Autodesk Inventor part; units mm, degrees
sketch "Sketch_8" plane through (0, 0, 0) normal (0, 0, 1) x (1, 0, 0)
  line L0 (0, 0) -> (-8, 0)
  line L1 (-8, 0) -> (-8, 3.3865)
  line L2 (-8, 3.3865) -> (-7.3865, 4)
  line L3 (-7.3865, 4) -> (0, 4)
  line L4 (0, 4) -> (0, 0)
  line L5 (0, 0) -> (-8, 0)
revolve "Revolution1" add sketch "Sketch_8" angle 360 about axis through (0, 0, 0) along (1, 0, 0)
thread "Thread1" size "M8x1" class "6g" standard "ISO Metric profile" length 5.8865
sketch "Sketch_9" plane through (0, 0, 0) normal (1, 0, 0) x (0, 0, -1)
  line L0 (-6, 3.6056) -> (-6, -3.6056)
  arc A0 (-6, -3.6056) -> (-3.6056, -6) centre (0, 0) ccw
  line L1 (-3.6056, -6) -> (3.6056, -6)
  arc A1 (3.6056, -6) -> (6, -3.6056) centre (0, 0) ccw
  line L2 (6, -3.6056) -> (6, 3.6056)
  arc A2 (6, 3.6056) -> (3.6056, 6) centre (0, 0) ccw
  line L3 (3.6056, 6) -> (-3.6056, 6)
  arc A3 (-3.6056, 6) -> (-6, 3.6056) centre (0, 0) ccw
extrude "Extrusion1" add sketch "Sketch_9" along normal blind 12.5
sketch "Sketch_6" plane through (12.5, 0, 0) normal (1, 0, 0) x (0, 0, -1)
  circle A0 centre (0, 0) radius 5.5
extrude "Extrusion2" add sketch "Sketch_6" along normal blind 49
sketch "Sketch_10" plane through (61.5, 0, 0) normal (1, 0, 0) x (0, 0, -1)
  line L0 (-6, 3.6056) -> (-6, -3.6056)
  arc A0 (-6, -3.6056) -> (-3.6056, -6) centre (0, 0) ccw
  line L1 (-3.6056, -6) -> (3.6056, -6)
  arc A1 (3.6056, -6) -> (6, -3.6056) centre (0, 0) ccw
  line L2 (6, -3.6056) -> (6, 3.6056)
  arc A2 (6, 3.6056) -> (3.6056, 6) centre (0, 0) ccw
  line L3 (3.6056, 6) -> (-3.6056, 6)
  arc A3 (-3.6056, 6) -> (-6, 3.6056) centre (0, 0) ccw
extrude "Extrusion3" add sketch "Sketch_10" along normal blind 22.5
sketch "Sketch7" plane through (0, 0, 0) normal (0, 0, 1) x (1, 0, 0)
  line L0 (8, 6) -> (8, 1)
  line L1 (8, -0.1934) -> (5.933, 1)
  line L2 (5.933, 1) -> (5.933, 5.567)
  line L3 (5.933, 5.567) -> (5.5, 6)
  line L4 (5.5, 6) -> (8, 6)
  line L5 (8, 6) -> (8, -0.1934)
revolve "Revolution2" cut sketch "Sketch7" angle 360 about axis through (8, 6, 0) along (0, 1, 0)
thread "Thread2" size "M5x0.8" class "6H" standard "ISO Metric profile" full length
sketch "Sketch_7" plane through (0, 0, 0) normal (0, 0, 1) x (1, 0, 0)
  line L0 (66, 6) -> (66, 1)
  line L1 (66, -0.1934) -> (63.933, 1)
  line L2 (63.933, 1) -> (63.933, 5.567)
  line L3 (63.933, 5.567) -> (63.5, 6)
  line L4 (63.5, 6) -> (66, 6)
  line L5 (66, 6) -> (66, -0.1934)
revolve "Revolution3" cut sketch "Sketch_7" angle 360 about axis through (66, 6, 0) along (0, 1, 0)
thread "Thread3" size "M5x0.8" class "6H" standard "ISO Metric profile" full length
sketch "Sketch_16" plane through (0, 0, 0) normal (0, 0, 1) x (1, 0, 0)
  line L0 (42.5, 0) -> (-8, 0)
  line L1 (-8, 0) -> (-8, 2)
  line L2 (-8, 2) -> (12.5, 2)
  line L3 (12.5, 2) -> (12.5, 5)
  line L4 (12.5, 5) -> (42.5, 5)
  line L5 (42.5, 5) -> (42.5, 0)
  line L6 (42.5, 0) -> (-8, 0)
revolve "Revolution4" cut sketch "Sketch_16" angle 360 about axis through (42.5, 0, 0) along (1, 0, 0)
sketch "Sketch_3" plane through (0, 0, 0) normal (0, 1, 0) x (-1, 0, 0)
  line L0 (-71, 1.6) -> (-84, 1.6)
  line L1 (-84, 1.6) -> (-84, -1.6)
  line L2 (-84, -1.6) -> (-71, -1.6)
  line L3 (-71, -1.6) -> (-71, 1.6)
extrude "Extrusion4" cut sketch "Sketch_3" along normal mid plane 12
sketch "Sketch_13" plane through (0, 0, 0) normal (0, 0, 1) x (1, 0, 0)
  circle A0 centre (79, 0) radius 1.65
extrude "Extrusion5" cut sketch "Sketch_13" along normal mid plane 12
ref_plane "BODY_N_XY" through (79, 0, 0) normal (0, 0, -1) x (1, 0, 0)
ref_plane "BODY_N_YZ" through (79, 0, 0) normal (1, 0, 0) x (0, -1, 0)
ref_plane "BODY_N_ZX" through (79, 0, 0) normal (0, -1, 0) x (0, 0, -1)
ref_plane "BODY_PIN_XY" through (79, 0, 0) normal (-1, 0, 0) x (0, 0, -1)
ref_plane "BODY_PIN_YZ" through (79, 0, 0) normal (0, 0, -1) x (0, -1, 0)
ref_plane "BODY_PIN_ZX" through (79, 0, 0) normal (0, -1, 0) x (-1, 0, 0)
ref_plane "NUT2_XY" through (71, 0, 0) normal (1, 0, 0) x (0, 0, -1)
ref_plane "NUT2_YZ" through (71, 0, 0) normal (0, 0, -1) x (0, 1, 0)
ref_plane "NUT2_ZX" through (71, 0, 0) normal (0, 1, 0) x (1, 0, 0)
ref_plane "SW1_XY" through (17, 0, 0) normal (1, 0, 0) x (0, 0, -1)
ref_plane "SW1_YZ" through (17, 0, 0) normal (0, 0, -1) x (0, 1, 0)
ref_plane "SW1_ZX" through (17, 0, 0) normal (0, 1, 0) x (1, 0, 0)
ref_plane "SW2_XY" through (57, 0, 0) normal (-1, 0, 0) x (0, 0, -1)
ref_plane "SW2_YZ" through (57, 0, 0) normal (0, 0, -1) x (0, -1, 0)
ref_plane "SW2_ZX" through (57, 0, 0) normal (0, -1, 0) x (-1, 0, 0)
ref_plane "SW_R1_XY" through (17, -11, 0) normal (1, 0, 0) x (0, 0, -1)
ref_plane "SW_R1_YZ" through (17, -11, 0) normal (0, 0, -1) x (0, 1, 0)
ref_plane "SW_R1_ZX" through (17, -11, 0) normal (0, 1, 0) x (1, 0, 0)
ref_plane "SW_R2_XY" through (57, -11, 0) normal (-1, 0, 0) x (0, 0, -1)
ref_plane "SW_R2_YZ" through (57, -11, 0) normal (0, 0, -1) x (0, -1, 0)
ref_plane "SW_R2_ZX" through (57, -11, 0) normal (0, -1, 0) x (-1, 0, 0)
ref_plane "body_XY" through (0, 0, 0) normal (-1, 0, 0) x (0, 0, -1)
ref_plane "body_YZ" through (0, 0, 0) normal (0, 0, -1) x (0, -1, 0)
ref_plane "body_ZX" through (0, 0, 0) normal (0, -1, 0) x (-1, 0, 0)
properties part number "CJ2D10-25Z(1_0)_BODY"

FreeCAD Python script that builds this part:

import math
import FreeCAD as App
import Part
import Sketcher

V = App.Vector
Q = App.Units.Quantity


def add_polygon(sketch, points):
    """Adds a closed chain of lines whose ends are joined by coincident constraints."""
    first, n = sketch.GeometryCount, len(points)
    for a, b in zip(points, points[1:] + points[:1]):
        sketch.addGeometry(Part.LineSegment(App.Vector(*a, 0), App.Vector(*b, 0)), False)
    for i in range(n):
        sketch.addConstraint(Sketcher.Constraint("Coincident", first + i, 2, first + (i + 1) % n, 1))

doc = App.newDocument("Part")
body = doc.addObject("PartDesign::Body", "Body")

sketch1 = body.newObject("Sketcher::SketchObject", "Sketch")
sketch1.AttachmentSupport = (doc.getObject("XY_Plane"), [""])
sketch1.MapMode = "FlatFace"
add_polygon(sketch1, [(-8, 0), (0, 0), (0, 4), (-7.4, 4), (-8, 3.4)])
sketch1.addConstraint(Sketcher.Constraint("Horizontal", 0))
sketch1.addConstraint(Sketcher.Constraint("Vertical", 1))
sketch1.addConstraint(Sketcher.Constraint("Horizontal", 2))
sketch1.addConstraint(Sketcher.Constraint("Vertical", 4))
sketch1.addConstraint(Sketcher.Constraint("Coincident", 0, 2, -1, 1))
sketch1.addConstraint(Sketcher.Constraint("DistanceX", 0, 1, 0, 2, Q("8 mm")))
sketch1.addConstraint(Sketcher.Constraint("DistanceY", 1, 1, 1, 2, Q("4 mm")))
sketch1.addConstraint(Sketcher.Constraint("Angle", 3, Q("-135 deg")))
sketch1.addConstraint(Sketcher.Constraint("DistanceX", 2, 2, 2, 1, Q("7.3865 mm")))
revolution = body.newObject("PartDesign::Revolution", "Revolution")
revolution.Profile = sketch1
revolution.ReferenceAxis = (sketch1, ["H_Axis"])
revolution.Angle = 360

sketch2 = body.newObject("Sketcher::SketchObject", "Sketch001")
sketch2.AttachmentSupport = (doc.getObject("YZ_Plane"), [""])
sketch2.MapMode = "FlatFace"
sketch2.addGeometry(Part.ArcOfCircle(Part.Circle(V(0, 0, 0), V(0, 0, 1), 7), math.radians(31), math.radians(59)), False)
sketch2.addGeometry(Part.LineSegment(V(3.6, 6, 0), V(-3.6, 6, 0)), False)
sketch2.addGeometry(Part.ArcOfCircle(Part.Circle(V(0, 0, 0), V(0, 0, 1), 7), math.radians(121), math.radians(149)), False)
sketch2.addGeometry(Part.LineSegment(V(-6, 3.6, 0), V(-6, -3.6, 0)), False)
sketch2.addGeometry(Part.ArcOfCircle(Part.Circle(V(0, 0, 0), V(0, 0, 1), 7), math.radians(-149), math.radians(-121)), False)
sketch2.addGeometry(Part.LineSegment(V(-3.6, -6, 0), V(3.6, -6, 0)), False)
sketch2.addGeometry(Part.ArcOfCircle(Part.Circle(V(0, 0, 0), V(0, 0, 1), 7), math.radians(-59), math.radians(-31)), False)
sketch2.addGeometry(Part.LineSegment(V(6, -3.6, 0), V(6, 3.6, 0)), False)
sketch2.addConstraint(Sketcher.Constraint("Coincident", 0, 2, 1, 1))
sketch2.addConstraint(Sketcher.Constraint("Coincident", 1, 2, 2, 1))
sketch2.addConstraint(Sketcher.Constraint("Coincident", 2, 2, 3, 1))
sketch2.addConstraint(Sketcher.Constraint("Coincident", 3, 2, 4, 1))
sketch2.addConstraint(Sketcher.Constraint("Coincident", 4, 2, 5, 1))
sketch2.addConstraint(Sketcher.Constraint("Coincident", 5, 2, 6, 1))
sketch2.addConstraint(Sketcher.Constraint("Coincident", 6, 2, 7, 1))
sketch2.addConstraint(Sketcher.Constraint("Coincident", 7, 2, 0, 1))
sketch2.addConstraint(Sketcher.Constraint("Horizontal", 1))
sketch2.addConstraint(Sketcher.Constraint("Vertical", 3))
sketch2.addConstraint(Sketcher.Constraint("Horizontal", 5))
sketch2.addConstraint(Sketcher.Constraint("Vertical", 7))
sketch2.addConstraint(Sketcher.Constraint("Coincident", 0, 3, -1, 1))
sketch2.addConstraint(Sketcher.Constraint("Coincident", 2, 3, -1, 1))
sketch2.addConstraint(Sketcher.Constraint("Coincident", 4, 3, -1, 1))
sketch2.addConstraint(Sketcher.Constraint("Coincident", 6, 3, -1, 1))
sketch2.addConstraint(Sketcher.Constraint("Equal", 0, 2))
sketch2.addConstraint(Sketcher.Constraint("Equal", 2, 4))
sketch2.addConstraint(Sketcher.Constraint("Equal", 4, 6))
sketch2.addConstraint(Sketcher.Constraint("Horizontal", 3, 2, 6, 2))
sketch2.addConstraint(Sketcher.Constraint("Vertical", 1, 2, 4, 2))
sketch2.addConstraint(Sketcher.Constraint("Equal", 5, 3))
sketch2.addConstraint(Sketcher.Constraint("Radius", 0, Q("7 mm")))
sketch2.addConstraint(Sketcher.Constraint("DistanceY", -1, 1, 0, 2, Q("6 mm")))
pad1 = body.newObject("PartDesign::Pad", "Pad")
pad1.Profile = sketch2
pad1.Length = 12.5

sketch3 = body.newObject("Sketcher::SketchObject", "Sketch002")
sketch3.AttachmentSupport = (doc.getObject("YZ_Plane"), [""])
sketch3.MapMode = "FlatFace"
sketch3.AttachmentOffset = App.Placement(V(0, 0, 12.5), App.Rotation())
sketch3.addGeometry(Part.Circle(V(0, 0, 0), V(0, 0, 1), 6), False)
sketch3.addConstraint(Sketcher.Constraint("Coincident", 0, 3, -1, 1))
sketch3.addConstraint(Sketcher.Constraint("Diameter", 0, Q("11 mm")))
pad2 = body.newObject("PartDesign::Pad", "Pad001")
pad2.Profile = sketch3
pad2.Length = 49

sketch4 = body.newObject("Sketcher::SketchObject", "Sketch003")
sketch4.AttachmentSupport = (doc.getObject("YZ_Plane"), [""])
sketch4.MapMode = "FlatFace"
sketch4.AttachmentOffset = App.Placement(V(0, 0, 61.5), App.Rotation())
sketch4.addGeometry(Part.ArcOfCircle(Part.Circle(V(0, 0, 0), V(0, 0, 1), 7), math.radians(31), math.radians(59)), False)
sketch4.addGeometry(Part.LineSegment(V(3.6, 6, 0), V(-3.6, 6, 0)), False)
sketch4.addGeometry(Part.ArcOfCircle(Part.Circle(V(0, 0, 0), V(0, 0, 1), 7), math.radians(121), math.radians(149)), False)
sketch4.addGeometry(Part.LineSegment(V(-6, 3.6, 0), V(-6, -3.6, 0)), False)
sketch4.addGeometry(Part.ArcOfCircle(Part.Circle(V(0, 0, 0), V(0, 0, 1), 7), math.radians(-149), math.radians(-121)), False)
sketch4.addGeometry(Part.LineSegment(V(-3.6, -6, 0), V(3.6, -6, 0)), False)
sketch4.addGeometry(Part.ArcOfCircle(Part.Circle(V(0, 0, 0), V(0, 0, 1), 7), math.radians(-59), math.radians(-31)), False)
sketch4.addGeometry(Part.LineSegment(V(6, -3.6, 0), V(6, 3.6, 0)), False)
sketch4.addConstraint(Sketcher.Constraint("Coincident", 0, 2, 1, 1))
sketch4.addConstraint(Sketcher.Constraint("Coincident", 1, 2, 2, 1))
sketch4.addConstraint(Sketcher.Constraint("Coincident", 2, 2, 3, 1))
sketch4.addConstraint(Sketcher.Constraint("Coincident", 3, 2, 4, 1))
sketch4.addConstraint(Sketcher.Constraint("Coincident", 4, 2, 5, 1))
sketch4.addConstraint(Sketcher.Constraint("Coincident", 5, 2, 6, 1))
sketch4.addConstraint(Sketcher.Constraint("Coincident", 6, 2, 7, 1))
sketch4.addConstraint(Sketcher.Constraint("Coincident", 7, 2, 0, 1))
sketch4.addConstraint(Sketcher.Constraint("Horizontal", 1))
sketch4.addConstraint(Sketcher.Constraint("Vertical", 3))
sketch4.addConstraint(Sketcher.Constraint("Horizontal", 5))
sketch4.addConstraint(Sketcher.Constraint("Vertical", 7))
sketch4.addConstraint(Sketcher.Constraint("Coincident", 0, 3, -1, 1))
sketch4.addConstraint(Sketcher.Constraint("Coincident", 2, 3, -1, 1))
sketch4.addConstraint(Sketcher.Constraint("Coincident", 4, 3, -1, 1))
sketch4.addConstraint(Sketcher.Constraint("Coincident", 6, 3, -1, 1))
sketch4.addConstraint(Sketcher.Constraint("Equal", 0, 2))
sketch4.addConstraint(Sketcher.Constraint("Equal", 2, 4))
sketch4.addConstraint(Sketcher.Constraint("Equal", 4, 6))
sketch4.addConstraint(Sketcher.Constraint("Horizontal", 3, 2, 6, 2))
sketch4.addConstraint(Sketcher.Constraint("Vertical", 1, 2, 4, 2))
sketch4.addConstraint(Sketcher.Constraint("Equal", 5, 3))
sketch4.addConstraint(Sketcher.Constraint("Radius", 0, Q("7 mm")))
sketch4.addConstraint(Sketcher.Constraint("DistanceY", -1, 1, 0, 2, Q("6 mm")))
pad3 = body.newObject("PartDesign::Pad", "Pad002")
pad3.Profile = sketch4
pad3.Length = 22.5

sketch5 = body.newObject("Sketcher::SketchObject", "Sketch004")
sketch5.AttachmentSupport = (doc.getObject("XY_Plane"), [""])
sketch5.MapMode = "FlatFace"
add_polygon(sketch5, [(8, -0.2), (8, 6), (5.5, 6), (5.9, 5.6), (5.9, 1)])
sketch5.addGeometry(Part.LineSegment(V(8, -0.2, 0), V(8, 6, 0)), True)
sketch5.addConstraint(Sketcher.Constraint("Vertical", 0))
sketch5.addConstraint(Sketcher.Constraint("Horizontal", 1))
sketch5.addConstraint(Sketcher.Constraint("Vertical", 3))
sketch5.addConstraint(Sketcher.Constraint("Vertical", 5))
sketch5.addConstraint(Sketcher.Constraint("Coincident", 5, 1, 4, 2))
sketch5.addConstraint(Sketcher.Constraint("Horizontal", 1, 2, 5, 2))
sketch5.addConstraint(Sketcher.Constraint("Angle", 2, Q("-45 deg")))
sketch5.addConstraint(Sketcher.Constraint("Angle", 4, Q("-30.0004 deg")))
sketch5.addConstraint(Sketcher.Constraint("DistanceX", 1, 2, 1, 1, Q("2.5 mm")))
sketch5.addConstraint(Sketcher.Constraint("DistanceX", -1, 1, 0, 2, Q("8 mm")))
sketch5.addConstraint(Sketcher.Constraint("DistanceY", -1, 1, 0, 2, Q("6 mm")))
sketch5.addConstraint(Sketcher.Constraint("DistanceY", -1, 1, 3, 2, Q("1 mm")))
sketch5.addConstraint(Sketcher.Constraint("DistanceY", 3, 2, 3, 1, Q("4.567 mm")))
groove = body.newObject("PartDesign::Groove", "Groove")
groove.Profile = sketch5
groove.ReferenceAxis = (sketch5, ["Axis0"])
groove.Angle = 360

sketch6 = body.newObject("Sketcher::SketchObject", "Sketch005")
sketch6.AttachmentSupport = (doc.getObject("XY_Plane"), [""])
sketch6.MapMode = "FlatFace"
add_polygon(sketch6, [(66, -0.2), (66, 6), (63.5, 6), (63.9, 5.6), (63.9, 1)])
sketch6.addGeometry(Part.LineSegment(V(66, -0.2, 0), V(66, 6, 0)), True)
sketch6.addConstraint(Sketcher.Constraint("Vertical", 0))
sketch6.addConstraint(Sketcher.Constraint("Horizontal", 1))
sketch6.addConstraint(Sketcher.Constraint("Vertical", 3))
sketch6.addConstraint(Sketcher.Constraint("Vertical", 5))
sketch6.addConstraint(Sketcher.Constraint("Coincident", 5, 1, 4, 2))
sketch6.addConstraint(Sketcher.Constraint("Horizontal", 1, 2, 5, 2))
sketch6.addConstraint(Sketcher.Constraint("Angle", 2, Q("-45 deg")))
sketch6.addConstraint(Sketcher.Constraint("Angle", 4, Q("-30.0004 deg")))
sketch6.addConstraint(Sketcher.Constraint("DistanceX", 1, 2, 1, 1, Q("2.5 mm")))
sketch6.addConstraint(Sketcher.Constraint("DistanceX", -1, 1, 0, 2, Q("66 mm")))
sketch6.addConstraint(Sketcher.Constraint("DistanceY", -1, 1, 0, 2, Q("6 mm")))
sketch6.addConstraint(Sketcher.Constraint("DistanceY", -1, 1, 3, 2, Q("1 mm")))
sketch6.addConstraint(Sketcher.Constraint("DistanceY", 3, 2, 3, 1, Q("4.567 mm")))
groove2 = body.newObject("PartDesign::Groove", "Groove001")
groove2.Profile = sketch6
groove2.ReferenceAxis = (sketch6, ["Axis0"])
groove2.Angle = 360

sketch7 = body.newObject("Sketcher::SketchObject", "Sketch006")
sketch7.AttachmentSupport = (doc.getObject("XY_Plane"), [""])
sketch7.MapMode = "FlatFace"
add_polygon(sketch7, [(-8, 0), (42.5, 0), (42.5, 5), (12.5, 5), (12.5, 2), (-8, 2)])
sketch7.addConstraint(Sketcher.Constraint("Horizontal", 0))
sketch7.addConstraint(Sketcher.Constraint("Vertical", 1))
sketch7.addConstraint(Sketcher.Constraint("Horizontal", 2))
sketch7.addConstraint(Sketcher.Constraint("Vertical", 3))
sketch7.addConstraint(Sketcher.Constraint("Horizontal", 4))
sketch7.addConstraint(Sketcher.Constraint("Vertical", 5))
sketch7.addConstraint(Sketcher.Constraint("PointOnObject", 0, 2, -1))
sketch7.addConstraint(Sketcher.Constraint("DistanceX", 2, 2, 2, 1, Q("30 mm")))
sketch7.addConstraint(Sketcher.Constraint("DistanceY", 1, 1, 1, 2, Q("5 mm")))
sketch7.addConstraint(Sketcher.Constraint("DistanceY", 3, 2, 3, 1, Q("3 mm")))
sketch7.addConstraint(Sketcher.Constraint("DistanceX", 0, 1, 0, 2, Q("50.5 mm")))
sketch7.addConstraint(Sketcher.Constraint("DistanceX", 4, 2, -1, 1, Q("8 mm")))
groove3 = body.newObject("PartDesign::Groove", "Groove002")
groove3.Profile = sketch7
groove3.ReferenceAxis = (sketch7, ["H_Axis"])
groove3.Angle = 360

sketch8 = body.newObject("Sketcher::SketchObject", "Sketch007")
sketch8.AttachmentSupport = (doc.getObject("XZ_Plane"), [""])
sketch8.MapMode = "FlatFace"
add_polygon(sketch8, [(71, -1.6), (71, 1.6), (84, 1.6), (84, -1.6)])
sketch8.addConstraint(Sketcher.Constraint("Vertical", 0))
sketch8.addConstraint(Sketcher.Constraint("Horizontal", 1))
sketch8.addConstraint(Sketcher.Constraint("Vertical", 2))
sketch8.addConstraint(Sketcher.Constraint("Horizontal", 3))
sketch8.addConstraint(Sketcher.Constraint("DistanceX", 1, 1, 1, 2, Q("13 mm")))
sketch8.addConstraint(Sketcher.Constraint("DistanceY", 0, 1, 0, 2, Q("3.2 mm")))
sketch8.addConstraint(Sketcher.Constraint("DistanceX", -1, 1, 0, 2, Q("71 mm")))
sketch8.addConstraint(Sketcher.Constraint("DistanceY", -1, 1, 0, 2, Q("1.6 mm")))
pocket1 = body.newObject("PartDesign::Pocket", "Pocket")
pocket1.Profile = sketch8
pocket1.Length = 12
pocket1.Midplane = True

sketch9 = body.newObject("Sketcher::SketchObject", "Sketch008")
sketch9.AttachmentSupport = (doc.getObject("XY_Plane"), [""])
sketch9.MapMode = "FlatFace"
sketch9.addGeometry(Part.Circle(V(79, 0, 0), V(0, 0, 1), 1.6), False)
sketch9.addConstraint(Sketcher.Constraint("PointOnObject", 0, 3, -1))
sketch9.addConstraint(Sketcher.Constraint("Diameter", 0, Q("3.3 mm")))
sketch9.addConstraint(Sketcher.Constraint("DistanceX", -1, 1, 0, 3, Q("79 mm")))
pocket2 = body.newObject("PartDesign::Pocket", "Pocket001")
pocket2.Profile = sketch9
pocket2.Length = 12
pocket2.Midplane = True

doc.recompute()
